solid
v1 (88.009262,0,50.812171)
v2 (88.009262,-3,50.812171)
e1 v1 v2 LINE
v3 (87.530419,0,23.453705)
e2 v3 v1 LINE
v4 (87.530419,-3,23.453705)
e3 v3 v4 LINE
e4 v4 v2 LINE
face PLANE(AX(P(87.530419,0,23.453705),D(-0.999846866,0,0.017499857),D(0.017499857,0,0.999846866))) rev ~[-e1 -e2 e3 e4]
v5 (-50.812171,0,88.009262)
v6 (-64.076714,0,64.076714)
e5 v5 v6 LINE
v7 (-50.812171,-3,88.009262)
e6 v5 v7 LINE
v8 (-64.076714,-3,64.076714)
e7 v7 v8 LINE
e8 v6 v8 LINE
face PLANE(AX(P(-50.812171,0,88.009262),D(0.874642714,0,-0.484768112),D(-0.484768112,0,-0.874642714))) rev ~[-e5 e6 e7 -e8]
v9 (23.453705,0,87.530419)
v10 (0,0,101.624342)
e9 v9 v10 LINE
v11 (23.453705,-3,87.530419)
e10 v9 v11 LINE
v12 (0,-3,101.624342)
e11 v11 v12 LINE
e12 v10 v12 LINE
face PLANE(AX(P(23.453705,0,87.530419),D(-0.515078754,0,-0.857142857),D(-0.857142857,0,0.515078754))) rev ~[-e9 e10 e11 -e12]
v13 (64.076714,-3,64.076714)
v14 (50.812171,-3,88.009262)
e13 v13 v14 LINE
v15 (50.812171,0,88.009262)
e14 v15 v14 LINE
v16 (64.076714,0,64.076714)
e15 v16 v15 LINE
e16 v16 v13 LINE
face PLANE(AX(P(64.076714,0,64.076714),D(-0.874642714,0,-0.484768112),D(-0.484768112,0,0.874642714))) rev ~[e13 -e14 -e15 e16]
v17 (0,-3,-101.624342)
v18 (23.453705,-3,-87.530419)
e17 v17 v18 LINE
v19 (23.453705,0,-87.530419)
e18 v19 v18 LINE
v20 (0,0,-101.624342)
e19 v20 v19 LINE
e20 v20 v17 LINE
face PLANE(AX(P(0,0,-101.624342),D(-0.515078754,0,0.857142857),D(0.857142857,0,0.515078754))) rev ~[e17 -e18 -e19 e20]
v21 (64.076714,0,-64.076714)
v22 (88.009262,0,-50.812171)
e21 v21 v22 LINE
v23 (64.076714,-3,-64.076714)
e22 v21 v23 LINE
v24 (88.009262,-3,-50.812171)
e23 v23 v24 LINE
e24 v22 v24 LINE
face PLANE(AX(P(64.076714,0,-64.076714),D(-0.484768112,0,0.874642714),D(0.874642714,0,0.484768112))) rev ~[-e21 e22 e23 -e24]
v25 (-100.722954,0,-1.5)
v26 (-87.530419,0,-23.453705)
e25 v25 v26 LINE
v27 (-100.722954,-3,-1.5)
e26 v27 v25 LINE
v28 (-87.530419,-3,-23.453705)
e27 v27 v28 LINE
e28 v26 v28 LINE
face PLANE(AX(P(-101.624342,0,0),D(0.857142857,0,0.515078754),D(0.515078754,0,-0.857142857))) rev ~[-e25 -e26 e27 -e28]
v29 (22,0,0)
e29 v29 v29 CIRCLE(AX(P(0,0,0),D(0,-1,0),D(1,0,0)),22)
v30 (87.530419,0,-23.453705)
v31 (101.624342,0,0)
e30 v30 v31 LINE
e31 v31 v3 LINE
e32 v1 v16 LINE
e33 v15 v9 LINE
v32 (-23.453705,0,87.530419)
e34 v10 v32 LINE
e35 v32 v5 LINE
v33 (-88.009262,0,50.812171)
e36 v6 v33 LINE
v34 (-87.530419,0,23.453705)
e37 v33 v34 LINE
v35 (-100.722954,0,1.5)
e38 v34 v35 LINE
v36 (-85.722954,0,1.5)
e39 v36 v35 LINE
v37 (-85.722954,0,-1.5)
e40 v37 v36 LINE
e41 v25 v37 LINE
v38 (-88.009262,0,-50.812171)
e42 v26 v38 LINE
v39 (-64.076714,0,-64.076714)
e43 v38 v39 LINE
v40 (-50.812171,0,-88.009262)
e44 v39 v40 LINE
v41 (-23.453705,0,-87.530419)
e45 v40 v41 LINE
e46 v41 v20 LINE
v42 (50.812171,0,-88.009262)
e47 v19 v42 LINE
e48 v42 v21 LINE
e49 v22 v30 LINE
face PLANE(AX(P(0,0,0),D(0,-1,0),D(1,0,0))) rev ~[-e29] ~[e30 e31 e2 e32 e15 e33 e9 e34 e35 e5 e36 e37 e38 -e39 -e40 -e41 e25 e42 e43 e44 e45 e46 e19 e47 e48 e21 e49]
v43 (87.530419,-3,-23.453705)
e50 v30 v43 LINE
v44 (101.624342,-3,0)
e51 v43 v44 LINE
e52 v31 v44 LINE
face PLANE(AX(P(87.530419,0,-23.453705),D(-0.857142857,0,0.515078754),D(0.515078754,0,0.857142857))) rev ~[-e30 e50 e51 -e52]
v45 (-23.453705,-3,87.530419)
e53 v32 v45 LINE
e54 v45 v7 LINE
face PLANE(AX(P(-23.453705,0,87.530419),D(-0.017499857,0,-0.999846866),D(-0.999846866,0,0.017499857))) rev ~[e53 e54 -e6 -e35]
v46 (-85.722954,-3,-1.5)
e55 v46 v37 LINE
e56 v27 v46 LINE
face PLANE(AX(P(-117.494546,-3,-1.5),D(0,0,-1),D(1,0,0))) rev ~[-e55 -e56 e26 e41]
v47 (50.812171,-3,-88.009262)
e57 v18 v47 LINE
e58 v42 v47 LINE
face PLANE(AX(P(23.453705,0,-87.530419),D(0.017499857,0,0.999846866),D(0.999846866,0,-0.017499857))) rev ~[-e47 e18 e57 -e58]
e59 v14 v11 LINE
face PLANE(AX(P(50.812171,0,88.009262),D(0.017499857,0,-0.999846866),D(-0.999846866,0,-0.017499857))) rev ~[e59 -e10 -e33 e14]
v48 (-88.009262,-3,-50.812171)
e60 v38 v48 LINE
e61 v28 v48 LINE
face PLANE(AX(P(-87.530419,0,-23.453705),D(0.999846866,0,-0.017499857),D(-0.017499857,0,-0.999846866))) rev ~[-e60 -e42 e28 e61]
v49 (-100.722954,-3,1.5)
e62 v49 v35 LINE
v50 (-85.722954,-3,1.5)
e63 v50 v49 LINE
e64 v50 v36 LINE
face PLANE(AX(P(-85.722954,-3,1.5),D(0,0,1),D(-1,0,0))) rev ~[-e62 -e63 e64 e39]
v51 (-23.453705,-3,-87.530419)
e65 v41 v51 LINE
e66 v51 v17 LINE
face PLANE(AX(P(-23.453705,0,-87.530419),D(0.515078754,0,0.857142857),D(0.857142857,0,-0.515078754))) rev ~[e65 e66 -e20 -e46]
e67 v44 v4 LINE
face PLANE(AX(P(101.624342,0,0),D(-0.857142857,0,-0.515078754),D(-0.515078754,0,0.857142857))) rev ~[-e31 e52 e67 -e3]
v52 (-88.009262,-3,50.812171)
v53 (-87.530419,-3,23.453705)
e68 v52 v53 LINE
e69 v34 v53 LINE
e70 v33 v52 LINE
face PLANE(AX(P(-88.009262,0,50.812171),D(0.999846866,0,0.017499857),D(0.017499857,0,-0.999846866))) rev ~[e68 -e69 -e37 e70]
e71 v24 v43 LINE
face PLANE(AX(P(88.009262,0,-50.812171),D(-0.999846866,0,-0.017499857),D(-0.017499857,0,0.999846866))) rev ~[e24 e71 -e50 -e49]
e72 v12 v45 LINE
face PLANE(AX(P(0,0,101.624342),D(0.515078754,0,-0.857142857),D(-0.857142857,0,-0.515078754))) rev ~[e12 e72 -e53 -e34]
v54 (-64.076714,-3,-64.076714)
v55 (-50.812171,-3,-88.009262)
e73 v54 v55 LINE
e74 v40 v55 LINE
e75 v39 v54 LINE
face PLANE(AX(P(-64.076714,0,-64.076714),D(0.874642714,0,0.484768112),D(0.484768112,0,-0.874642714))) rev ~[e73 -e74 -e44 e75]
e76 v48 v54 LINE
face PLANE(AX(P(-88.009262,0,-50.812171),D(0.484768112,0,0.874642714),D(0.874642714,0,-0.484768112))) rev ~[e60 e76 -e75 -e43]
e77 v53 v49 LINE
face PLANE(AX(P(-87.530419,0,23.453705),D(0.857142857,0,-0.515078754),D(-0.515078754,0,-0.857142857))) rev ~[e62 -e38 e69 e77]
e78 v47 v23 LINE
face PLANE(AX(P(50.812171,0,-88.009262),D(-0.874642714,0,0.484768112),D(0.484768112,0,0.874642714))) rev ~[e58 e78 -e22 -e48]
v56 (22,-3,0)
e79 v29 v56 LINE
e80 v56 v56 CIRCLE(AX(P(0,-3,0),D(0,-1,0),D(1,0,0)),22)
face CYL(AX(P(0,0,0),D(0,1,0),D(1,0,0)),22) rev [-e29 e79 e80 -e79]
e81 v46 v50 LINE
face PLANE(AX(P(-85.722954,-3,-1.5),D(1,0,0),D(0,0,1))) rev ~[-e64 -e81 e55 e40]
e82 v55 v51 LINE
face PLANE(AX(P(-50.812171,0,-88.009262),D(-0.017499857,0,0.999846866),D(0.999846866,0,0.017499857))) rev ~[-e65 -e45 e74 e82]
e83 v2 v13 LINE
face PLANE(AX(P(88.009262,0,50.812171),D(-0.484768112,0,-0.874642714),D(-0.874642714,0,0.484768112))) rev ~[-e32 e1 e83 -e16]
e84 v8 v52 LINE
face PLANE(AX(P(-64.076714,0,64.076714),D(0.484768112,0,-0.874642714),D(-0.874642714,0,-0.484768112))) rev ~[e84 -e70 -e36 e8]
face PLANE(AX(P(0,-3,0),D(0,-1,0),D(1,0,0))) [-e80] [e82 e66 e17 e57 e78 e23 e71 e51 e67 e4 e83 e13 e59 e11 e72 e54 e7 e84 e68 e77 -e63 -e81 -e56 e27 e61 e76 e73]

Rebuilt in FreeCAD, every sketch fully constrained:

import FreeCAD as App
import Part
import Sketcher
from FreeCAD import Vector

doc = App.newDocument("Part")
params = doc.addObject("Spreadsheet::Sheet", "Params")
for row, (alias, value) in enumerate([
    ("sketch1_diameter", "44 mm"),
    ("pad1_length", "3 mm"),
    ("sketch2_diameter", "44 mm"),
    ("pad2_length", "3 mm"),
    ("sketch3_width", "15 mm"),
    ("sketch3_height", "3 mm"),
    ("pocket1_length", "25 mm"),
], start=1):
    params.set(f"A{row}", alias)
    params.set(f"B{row}", "=" + value)
    params.setAlias(f"B{row}", alias)

body = doc.addObject("PartDesign::Body", "Body")

sketch1 = body.newObject("Sketcher::SketchObject", "Sketch")
sketch1.AttachmentSupport = (doc.getObject("XZ_Plane"), [""])
sketch1.MapMode = "FlatFace"
sketch1.addGeometry([
    Part.LineSegment(Vector(0, 102, 0), Vector(-23, 88, 0)),
    Part.LineSegment(Vector(-23, 88, 0), Vector(-51, 88, 0)),
    Part.LineSegment(Vector(-51, 88, 0), Vector(-64, 64, 0)),
    Part.LineSegment(Vector(-64, 64, 0), Vector(-88, 51, 0)),
    Part.LineSegment(Vector(-88, 51, 0), Vector(-88, 23, 0)),
    Part.LineSegment(Vector(-88, 23, 0), Vector(-102, 0, 0)),
    Part.LineSegment(Vector(-102, 0, 0), Vector(-88, -23, 0)),
    Part.LineSegment(Vector(-88, -23, 0), Vector(-88, -51, 0)),
    Part.LineSegment(Vector(-88, -51, 0), Vector(-64, -64, 0)),
    Part.LineSegment(Vector(-64, -64, 0), Vector(-51, -88, 0)),
    Part.LineSegment(Vector(-51, -88, 0), Vector(-23, -88, 0)),
    Part.LineSegment(Vector(-23, -88, 0), Vector(0, -102, 0)),
    Part.LineSegment(Vector(0, -102, 0), Vector(23, -88, 0)),
    Part.LineSegment(Vector(23, -88, 0), Vector(51, -88, 0)),
    Part.LineSegment(Vector(51, -88, 0), Vector(64, -64, 0)),
    Part.LineSegment(Vector(64, -64, 0), Vector(88, -51, 0)),
    Part.LineSegment(Vector(88, -51, 0), Vector(88, -23, 0)),
    Part.LineSegment(Vector(88, -23, 0), Vector(102, 0, 0)),
    Part.LineSegment(Vector(102, 0, 0), Vector(88, 23, 0)),
    Part.LineSegment(Vector(88, 23, 0), Vector(88, 51, 0)),
    Part.LineSegment(Vector(88, 51, 0), Vector(64, 64, 0)),
    Part.LineSegment(Vector(64, 64, 0), Vector(51, 88, 0)),
    Part.LineSegment(Vector(51, 88, 0), Vector(23, 88, 0)),
    Part.LineSegment(Vector(23, 88, 0), Vector(0, 102, 0)),
    Part.Circle(Vector(0, 0, 0), Vector(0, 0, 1), 22),
], False)
sketch1.addConstraint([
    Sketcher.Constraint("Coincident", 0, 2, 1, 1),
    Sketcher.Constraint("Coincident", 1, 2, 2, 1),
    Sketcher.Constraint("Coincident", 2, 2, 3, 1),
    Sketcher.Constraint("Coincident", 3, 2, 4, 1),
    Sketcher.Constraint("Coincident", 4, 2, 5, 1),
    Sketcher.Constraint("Coincident", 5, 2, 6, 1),
    Sketcher.Constraint("Coincident", 6, 2, 7, 1),
    Sketcher.Constraint("Coincident", 7, 2, 8, 1),
    Sketcher.Constraint("Coincident", 8, 2, 9, 1),
    Sketcher.Constraint("Coincident", 9, 2, 10, 1),
    Sketcher.Constraint("Coincident", 10, 2, 11, 1),
    Sketcher.Constraint("Coincident", 11, 2, 12, 1),
    Sketcher.Constraint("Coincident", 12, 2, 13, 1),
    Sketcher.Constraint("Coincident", 13, 2, 14, 1),
    Sketcher.Constraint("Coincident", 14, 2, 15, 1),
    Sketcher.Constraint("Coincident", 15, 2, 16, 1),
    Sketcher.Constraint("Coincident", 16, 2, 17, 1),
    Sketcher.Constraint("Coincident", 17, 2, 18, 1),
    Sketcher.Constraint("Coincident", 18, 2, 19, 1),
    Sketcher.Constraint("Coincident", 19, 2, 20, 1),
    Sketcher.Constraint("Coincident", 20, 2, 21, 1),
    Sketcher.Constraint("Coincident", 21, 2, 22, 1),
    Sketcher.Constraint("Coincident", 22, 2, 23, 1),
    Sketcher.Constraint("Coincident", 23, 2, 0, 1),
    Sketcher.Constraint("Coincident", 24, 3, -1, 1),
    Sketcher.Constraint("Symmetric", 0, 2, 12, 2, -1, 1),
    Sketcher.Constraint("Symmetric", 1, 2, 13, 2, -1, 1),
    Sketcher.Constraint("Symmetric", 2, 2, 14, 2, -1, 1),
    Sketcher.Constraint("Symmetric", 3, 2, 15, 2, -1, 1),
    Sketcher.Constraint("Symmetric", 4, 2, 16, 2, -1, 1),
    Sketcher.Constraint("Symmetric", 5, 2, 17, 2, -1, 1),
    Sketcher.Constraint("Symmetric", 6, 2, 18, 2, -1, 1),
    Sketcher.Constraint("Symmetric", 7, 2, 19, 2, -1, 1),
    Sketcher.Constraint("Symmetric", 8, 2, 20, 2, -1, 1),
    Sketcher.Constraint("Symmetric", 9, 2, 21, 2, -1, 1),
    Sketcher.Constraint("Symmetric", 10, 2, 22, 2, -1, 1),
    Sketcher.Constraint("Symmetric", 11, 2, 23, 2, -1, 1),
    Sketcher.Constraint("Symmetric", 10, 2, 12, 2, -2),
    Sketcher.Constraint("Symmetric", 9, 2, 13, 2, -2),
    Sketcher.Constraint("Symmetric", 8, 2, 14, 2, -2),
    Sketcher.Constraint("Symmetric", 7, 2, 15, 2, -2),
    Sketcher.Constraint("Symmetric", 6, 2, 16, 2, -2),
    Sketcher.Constraint("PointOnObject", 5, 2, -1),
    Sketcher.Constraint("PointOnObject", 11, 2, -2),
    Sketcher.Constraint("Perpendicular", 0, 6),
    Sketcher.Constraint("Perpendicular", 1, 7),
    Sketcher.Constraint("Perpendicular", 2, 8),
    Sketcher.Constraint("Equal", 0, 1),
    Sketcher.Constraint("Equal", 1, 2),
    Sketcher.Constraint("Equal", 2, 3),
    Sketcher.Constraint("Equal", 3, 4),
    Sketcher.Constraint("Equal", 4, 5),
    Sketcher.Constraint("Diameter", 24, 44.0),
    Sketcher.Constraint("DistanceY", -1, 1, 0, 2, 87.530419),
    Sketcher.Constraint("DistanceX", 1, 2, -1, 1, 50.812171),
    Sketcher.Constraint("DistanceX", 2, 2, 0, 2, 40.623009),
    Sketcher.Constraint("DistanceX", 3, 2, 1, 2, 37.197091),
])
sketch1.setExpression("Constraints[52]", "Params.sketch1_diameter")
pad1 = body.newObject("PartDesign::Pad", "Pad")
pad1.Profile = sketch1
pad1.setExpression("Length", "Params.pad1_length")

sketch2 = body.newObject("Sketcher::SketchObject", "Sketch001")
sketch2.AttachmentSupport = (doc.getObject("XZ_Plane"), [""])
sketch2.MapMode = "FlatFace"
sketch2.addGeometry([
    Part.LineSegment(Vector(0, 102, 0), Vector(-23, 88, 0)),
    Part.LineSegment(Vector(-23, 88, 0), Vector(-51, 88, 0)),
    Part.LineSegment(Vector(-51, 88, 0), Vector(-64, 64, 0)),
    Part.LineSegment(Vector(-64, 64, 0), Vector(-88, 51, 0)),
    Part.LineSegment(Vector(-88, 51, 0), Vector(-88, 23, 0)),
    Part.LineSegment(Vector(-88, 23, 0), Vector(-102, 0, 0)),
    Part.LineSegment(Vector(-102, 0, 0), Vector(-88, -23, 0)),
    Part.LineSegment(Vector(-88, -23, 0), Vector(-88, -51, 0)),
    Part.LineSegment(Vector(-88, -51, 0), Vector(-64, -64, 0)),
    Part.LineSegment(Vector(-64, -64, 0), Vector(-51, -88, 0)),
    Part.LineSegment(Vector(-51, -88, 0), Vector(-23, -88, 0)),
    Part.LineSegment(Vector(-23, -88, 0), Vector(0, -102, 0)),
    Part.LineSegment(Vector(0, -102, 0), Vector(23, -88, 0)),
    Part.LineSegment(Vector(23, -88, 0), Vector(51, -88, 0)),
    Part.LineSegment(Vector(51, -88, 0), Vector(64, -64, 0)),
    Part.LineSegment(Vector(64, -64, 0), Vector(88, -51, 0)),
    Part.LineSegment(Vector(88, -51, 0), Vector(88, -23, 0)),
    Part.LineSegment(Vector(88, -23, 0), Vector(102, 0, 0)),
    Part.LineSegment(Vector(102, 0, 0), Vector(88, 23, 0)),
    Part.LineSegment(Vector(88, 23, 0), Vector(88, 51, 0)),
    Part.LineSegment(Vector(88, 51, 0), Vector(64, 64, 0)),
    Part.LineSegment(Vector(64, 64, 0), Vector(51, 88, 0)),
    Part.LineSegment(Vector(51, 88, 0), Vector(23, 88, 0)),
    Part.LineSegment(Vector(23, 88, 0), Vector(0, 102, 0)),
    Part.Circle(Vector(0, 0, 0), Vector(0, 0, 1), 22),
], False)
sketch2.addConstraint([
    Sketcher.Constraint("Coincident", 0, 2, 1, 1),
    Sketcher.Constraint("Coincident", 1, 2, 2, 1),
    Sketcher.Constraint("Coincident", 2, 2, 3, 1),
    Sketcher.Constraint("Coincident", 3, 2, 4, 1),
    Sketcher.Constraint("Coincident", 4, 2, 5, 1),
    Sketcher.Constraint("Coincident", 5, 2, 6, 1),
    Sketcher.Constraint("Coincident", 6, 2, 7, 1),
    Sketcher.Constraint("Coincident", 7, 2, 8, 1),
    Sketcher.Constraint("Coincident", 8, 2, 9, 1),
    Sketcher.Constraint("Coincident", 9, 2, 10, 1),
    Sketcher.Constraint("Coincident", 10, 2, 11, 1),
    Sketcher.Constraint("Coincident", 11, 2, 12, 1),
    Sketcher.Constraint("Coincident", 12, 2, 13, 1),
    Sketcher.Constraint("Coincident", 13, 2, 14, 1),
    Sketcher.Constraint("Coincident", 14, 2, 15, 1),
    Sketcher.Constraint("Coincident", 15, 2, 16, 1),
    Sketcher.Constraint("Coincident", 16, 2, 17, 1),
    Sketcher.Constraint("Coincident", 17, 2, 18, 1),
    Sketcher.Constraint("Coincident", 18, 2, 19, 1),
    Sketcher.Constraint("Coincident", 19, 2, 20, 1),
    Sketcher.Constraint("Coincident", 20, 2, 21, 1),
    Sketcher.Constraint("Coincident", 21, 2, 22, 1),
    Sketcher.Constraint("Coincident", 22, 2, 23, 1),
    Sketcher.Constraint("Coincident", 23, 2, 0, 1),
    Sketcher.Constraint("Coincident", 24, 3, -1, 1),
    Sketcher.Constraint("Symmetric", 0, 2, 12, 2, -1, 1),
    Sketcher.Constraint("Symmetric", 1, 2, 13, 2, -1, 1),
    Sketcher.Constraint("Symmetric", 2, 2, 14, 2, -1, 1),
    Sketcher.Constraint("Symmetric", 3, 2, 15, 2, -1, 1),
    Sketcher.Constraint("Symmetric", 4, 2, 16, 2, -1, 1),
    Sketcher.Constraint("Symmetric", 5, 2, 17, 2, -1, 1),
    Sketcher.Constraint("Symmetric", 6, 2, 18, 2, -1, 1),
    Sketcher.Constraint("Symmetric", 7, 2, 19, 2, -1, 1),
    Sketcher.Constraint("Symmetric", 8, 2, 20, 2, -1, 1),
    Sketcher.Constraint("Symmetric", 9, 2, 21, 2, -1, 1),
    Sketcher.Constraint("Symmetric", 10, 2, 22, 2, -1, 1),
    Sketcher.Constraint("Symmetric", 11, 2, 23, 2, -1, 1),
    Sketcher.Constraint("Symmetric", 10, 2, 12, 2, -2),
    Sketcher.Constraint("Symmetric", 9, 2, 13, 2, -2),
    Sketcher.Constraint("Symmetric", 8, 2, 14, 2, -2),
    Sketcher.Constraint("Symmetric", 7, 2, 15, 2, -2),
    Sketcher.Constraint("Symmetric", 6, 2, 16, 2, -2),
    Sketcher.Constraint("PointOnObject", 5, 2, -1),
    Sketcher.Constraint("PointOnObject", 11, 2, -2),
    Sketcher.Constraint("Perpendicular", 0, 6),
    Sketcher.Constraint("Perpendicular", 1, 7),
    Sketcher.Constraint("Perpendicular", 2, 8),
    Sketcher.Constraint("Equal", 0, 1),
    Sketcher.Constraint("Equal", 1, 2),
    Sketcher.Constraint("Equal", 2, 3),
    Sketcher.Constraint("Equal", 3, 4),
    Sketcher.Constraint("Equal", 4, 5),
    Sketcher.Constraint("Diameter", 24, 44.0),
    Sketcher.Constraint("DistanceY", -1, 1, 0, 2, 87.530419),
    Sketcher.Constraint("DistanceX", 1, 2, -1, 1, 50.812171),
    Sketcher.Constraint("DistanceX", 2, 2, 0, 2, 40.623009),
    Sketcher.Constraint("DistanceX", 3, 2, 1, 2, 37.197091),
])
sketch2.setExpression("Constraints[52]", "Params.sketch2_diameter")
pad2 = body.newObject("PartDesign::Pad", "Pad001")
pad2.Profile = sketch2
pad2.setExpression("Length", "Params.pad2_length")

sketch3 = body.newObject("Sketcher::SketchObject", "Sketch002")
sketch3.AttachmentSupport = (doc.getObject("XZ_Plane"), [""])
sketch3.MapMode = "FlatFace"
sketch3.AttachmentOffset = App.Placement(Vector(0, 0, 3), App.Rotation())
sketch3.addGeometry([
    Part.LineSegment(Vector(-85.7, -1.5, 0), Vector(-85.7, 1.5, 0)),
    Part.LineSegment(Vector(-85.7, 1.5, 0), Vector(-100.7, 1.5, 0)),
    Part.LineSegment(Vector(-100.7, 1.5, 0), Vector(-100.7, 14, 0)),
    Part.LineSegment(Vector(-100.7, 14, 0), Vector(-117.5, 14, 0)),
    Part.LineSegment(Vector(-117.5, 14, 0), Vector(-117.5, -1.5, 0)),
    Part.LineSegment(Vector(-117.5, -1.5, 0), Vector(-85.7, -1.5, 0)),
], False)
sketch3.addConstraint([
    Sketcher.Constraint("Coincident", 0, 2, 1, 1),
    Sketcher.Constraint("Coincident", 1, 2, 2, 1),
    Sketcher.Constraint("Coincident", 2, 2, 3, 1),
    Sketcher.Constraint("Coincident", 3, 2, 4, 1),
    Sketcher.Constraint("Coincident", 4, 2, 5, 1),
    Sketcher.Constraint("Coincident", 5, 2, 0, 1),
    Sketcher.Constraint("Vertical", 0),
    Sketcher.Constraint("Horizontal", 1),
    Sketcher.Constraint("Vertical", 2),
    Sketcher.Constraint("Horizontal", 3),
    Sketcher.Constraint("Vertical", 4),
    Sketcher.Constraint("Horizontal", 5),
    Sketcher.Constraint("DistanceX", 1, 2, 1, 1, 15.0),
    Sketcher.Constraint("DistanceY", 0, 1, 0, 2, 3.0),
    Sketcher.Constraint("DistanceY", -1, 1, 0, 2, 1.5),
    Sketcher.Constraint("DistanceX", 3, 2, 3, 1, 16.771591),
    Sketcher.Constraint("DistanceY", 2, 1, 2, 2, 12.502784),
    Sketcher.Constraint("DistanceX", 0, 2, -1, 1, 85.722954),
])
sketch3.setExpression("Constraints[12]", "Params.sketch3_width")
sketch3.setExpression("Constraints[13]", "Params.sketch3_height")
pocket1 = body.newObject("PartDesign::Pocket", "Pocket")
pocket1.Profile = sketch3
pocket1.setExpression("Length", "Params.pocket1_length")

doc.recompute()
